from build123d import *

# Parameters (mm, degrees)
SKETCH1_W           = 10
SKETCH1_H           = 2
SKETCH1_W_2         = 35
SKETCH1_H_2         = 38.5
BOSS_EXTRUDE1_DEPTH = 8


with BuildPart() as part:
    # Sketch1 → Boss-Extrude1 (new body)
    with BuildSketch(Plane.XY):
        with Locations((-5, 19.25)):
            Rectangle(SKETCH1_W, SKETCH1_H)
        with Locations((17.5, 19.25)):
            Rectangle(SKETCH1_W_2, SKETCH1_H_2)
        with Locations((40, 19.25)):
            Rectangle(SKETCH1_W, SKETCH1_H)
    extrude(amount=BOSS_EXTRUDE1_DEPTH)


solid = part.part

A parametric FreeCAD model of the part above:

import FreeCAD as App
import Part
import Sketcher
from FreeCAD import Vector
Q = App.Units.Quantity

doc = App.newDocument("Part")
body = doc.addObject("PartDesign::Body", "Body")

# Sketch on XY plane
sketch1 = body.newObject("Sketcher::SketchObject", "Sketch")
sketch1.AttachmentSupport = (doc.getObject("XY_Plane"), [""])
sketch1.MapMode = "FlatFace"
sketch1.addGeometry([
    Part.LineSegment(Vector(-10, 20.25, 0), Vector(-10, 18.25, 0)),  # 0
    Part.LineSegment(Vector(-10, 18.25, 0), Vector(0, 18.25, 0)),  # 1
    Part.LineSegment(Vector(0, 18.25, 0), Vector(0, 0, 0)),  # 2
    Part.LineSegment(Vector(0, 0, 0), Vector(35, 0, 0)),  # 3
    Part.LineSegment(Vector(35, 0, 0), Vector(35, 18.25, 0)),  # 4
    Part.LineSegment(Vector(35, 18.25, 0), Vector(45, 18.25, 0)),  # 5
    Part.LineSegment(Vector(45, 18.25, 0), Vector(45, 20.25, 0)),  # 6
    Part.LineSegment(Vector(45, 20.25, 0), Vector(35, 20.25, 0)),  # 7
    Part.LineSegment(Vector(35, 20.25, 0), Vector(35, 38.5, 0)),  # 8
    Part.LineSegment(Vector(35, 38.5, 0), Vector(0, 38.5, 0)),  # 9
    Part.LineSegment(Vector(0, 38.5, 0), Vector(0, 20.25, 0)),  # 10
    Part.LineSegment(Vector(0, 20.25, 0), Vector(-10, 20.25, 0)),  # 11
], False)
sketch1.addConstraint([
    Sketcher.Constraint("Coincident", 0, 2, 1, 1),
    Sketcher.Constraint("Coincident", 1, 2, 2, 1),
    Sketcher.Constraint("Coincident", 2, 2, 3, 1),
    Sketcher.Constraint("Coincident", 3, 2, 4, 1),
    Sketcher.Constraint("Coincident", 4, 2, 5, 1),
    Sketcher.Constraint("Coincident", 5, 2, 6, 1),
    Sketcher.Constraint("Coincident", 6, 2, 7, 1),
    Sketcher.Constraint("Coincident", 7, 2, 8, 1),
    Sketcher.Constraint("Coincident", 8, 2, 9, 1),
    Sketcher.Constraint("Coincident", 9, 2, 10, 1),
    Sketcher.Constraint("Coincident", 10, 2, 11, 1),
    Sketcher.Constraint("Coincident", 11, 2, 0, 1),
    Sketcher.Constraint("Vertical", 0),
    Sketcher.Constraint("Horizontal", 1),
    Sketcher.Constraint("Vertical", 2),
    Sketcher.Constraint("Horizontal", 3),
    Sketcher.Constraint("Vertical", 4),
    Sketcher.Constraint("Horizontal", 5),
    Sketcher.Constraint("Vertical", 6),
    Sketcher.Constraint("Horizontal", 7),
    Sketcher.Constraint("Vertical", 8),
    Sketcher.Constraint("Horizontal", 9),
    Sketcher.Constraint("Vertical", 10),
    Sketcher.Constraint("Horizontal", 11),
    Sketcher.Constraint("Coincident", 2, 2, -1, 1),
    Sketcher.Constraint("PointOnObject", 9, 2, -2),
    Sketcher.Constraint("Horizontal", 1, 2, 4, 2),
    Sketcher.Constraint("Horizontal", 7, 2, 10, 2),
    Sketcher.Constraint("Vertical", 4, 2, 7, 2),
    Sketcher.Constraint("Equal", 1, 5),
    Sketcher.Constraint("Equal", 4, 8),
    Sketcher.Constraint("DistanceX", 1, 1, 1, 2, Q("10 mm")),
    Sketcher.Constraint("DistanceX", 3, 1, 3, 2, Q("35 mm")),
    Sketcher.Constraint("DistanceY", 0, 2, 0, 1, Q("2 mm")),
    Sketcher.Constraint("DistanceY", 2, 2, 2, 1, Q("18.25 mm")),
])
pad1 = body.newObject("PartDesign::Pad", "Pad")
pad1.Profile = sketch1
pad1.Length = 8

doc.recompute()
